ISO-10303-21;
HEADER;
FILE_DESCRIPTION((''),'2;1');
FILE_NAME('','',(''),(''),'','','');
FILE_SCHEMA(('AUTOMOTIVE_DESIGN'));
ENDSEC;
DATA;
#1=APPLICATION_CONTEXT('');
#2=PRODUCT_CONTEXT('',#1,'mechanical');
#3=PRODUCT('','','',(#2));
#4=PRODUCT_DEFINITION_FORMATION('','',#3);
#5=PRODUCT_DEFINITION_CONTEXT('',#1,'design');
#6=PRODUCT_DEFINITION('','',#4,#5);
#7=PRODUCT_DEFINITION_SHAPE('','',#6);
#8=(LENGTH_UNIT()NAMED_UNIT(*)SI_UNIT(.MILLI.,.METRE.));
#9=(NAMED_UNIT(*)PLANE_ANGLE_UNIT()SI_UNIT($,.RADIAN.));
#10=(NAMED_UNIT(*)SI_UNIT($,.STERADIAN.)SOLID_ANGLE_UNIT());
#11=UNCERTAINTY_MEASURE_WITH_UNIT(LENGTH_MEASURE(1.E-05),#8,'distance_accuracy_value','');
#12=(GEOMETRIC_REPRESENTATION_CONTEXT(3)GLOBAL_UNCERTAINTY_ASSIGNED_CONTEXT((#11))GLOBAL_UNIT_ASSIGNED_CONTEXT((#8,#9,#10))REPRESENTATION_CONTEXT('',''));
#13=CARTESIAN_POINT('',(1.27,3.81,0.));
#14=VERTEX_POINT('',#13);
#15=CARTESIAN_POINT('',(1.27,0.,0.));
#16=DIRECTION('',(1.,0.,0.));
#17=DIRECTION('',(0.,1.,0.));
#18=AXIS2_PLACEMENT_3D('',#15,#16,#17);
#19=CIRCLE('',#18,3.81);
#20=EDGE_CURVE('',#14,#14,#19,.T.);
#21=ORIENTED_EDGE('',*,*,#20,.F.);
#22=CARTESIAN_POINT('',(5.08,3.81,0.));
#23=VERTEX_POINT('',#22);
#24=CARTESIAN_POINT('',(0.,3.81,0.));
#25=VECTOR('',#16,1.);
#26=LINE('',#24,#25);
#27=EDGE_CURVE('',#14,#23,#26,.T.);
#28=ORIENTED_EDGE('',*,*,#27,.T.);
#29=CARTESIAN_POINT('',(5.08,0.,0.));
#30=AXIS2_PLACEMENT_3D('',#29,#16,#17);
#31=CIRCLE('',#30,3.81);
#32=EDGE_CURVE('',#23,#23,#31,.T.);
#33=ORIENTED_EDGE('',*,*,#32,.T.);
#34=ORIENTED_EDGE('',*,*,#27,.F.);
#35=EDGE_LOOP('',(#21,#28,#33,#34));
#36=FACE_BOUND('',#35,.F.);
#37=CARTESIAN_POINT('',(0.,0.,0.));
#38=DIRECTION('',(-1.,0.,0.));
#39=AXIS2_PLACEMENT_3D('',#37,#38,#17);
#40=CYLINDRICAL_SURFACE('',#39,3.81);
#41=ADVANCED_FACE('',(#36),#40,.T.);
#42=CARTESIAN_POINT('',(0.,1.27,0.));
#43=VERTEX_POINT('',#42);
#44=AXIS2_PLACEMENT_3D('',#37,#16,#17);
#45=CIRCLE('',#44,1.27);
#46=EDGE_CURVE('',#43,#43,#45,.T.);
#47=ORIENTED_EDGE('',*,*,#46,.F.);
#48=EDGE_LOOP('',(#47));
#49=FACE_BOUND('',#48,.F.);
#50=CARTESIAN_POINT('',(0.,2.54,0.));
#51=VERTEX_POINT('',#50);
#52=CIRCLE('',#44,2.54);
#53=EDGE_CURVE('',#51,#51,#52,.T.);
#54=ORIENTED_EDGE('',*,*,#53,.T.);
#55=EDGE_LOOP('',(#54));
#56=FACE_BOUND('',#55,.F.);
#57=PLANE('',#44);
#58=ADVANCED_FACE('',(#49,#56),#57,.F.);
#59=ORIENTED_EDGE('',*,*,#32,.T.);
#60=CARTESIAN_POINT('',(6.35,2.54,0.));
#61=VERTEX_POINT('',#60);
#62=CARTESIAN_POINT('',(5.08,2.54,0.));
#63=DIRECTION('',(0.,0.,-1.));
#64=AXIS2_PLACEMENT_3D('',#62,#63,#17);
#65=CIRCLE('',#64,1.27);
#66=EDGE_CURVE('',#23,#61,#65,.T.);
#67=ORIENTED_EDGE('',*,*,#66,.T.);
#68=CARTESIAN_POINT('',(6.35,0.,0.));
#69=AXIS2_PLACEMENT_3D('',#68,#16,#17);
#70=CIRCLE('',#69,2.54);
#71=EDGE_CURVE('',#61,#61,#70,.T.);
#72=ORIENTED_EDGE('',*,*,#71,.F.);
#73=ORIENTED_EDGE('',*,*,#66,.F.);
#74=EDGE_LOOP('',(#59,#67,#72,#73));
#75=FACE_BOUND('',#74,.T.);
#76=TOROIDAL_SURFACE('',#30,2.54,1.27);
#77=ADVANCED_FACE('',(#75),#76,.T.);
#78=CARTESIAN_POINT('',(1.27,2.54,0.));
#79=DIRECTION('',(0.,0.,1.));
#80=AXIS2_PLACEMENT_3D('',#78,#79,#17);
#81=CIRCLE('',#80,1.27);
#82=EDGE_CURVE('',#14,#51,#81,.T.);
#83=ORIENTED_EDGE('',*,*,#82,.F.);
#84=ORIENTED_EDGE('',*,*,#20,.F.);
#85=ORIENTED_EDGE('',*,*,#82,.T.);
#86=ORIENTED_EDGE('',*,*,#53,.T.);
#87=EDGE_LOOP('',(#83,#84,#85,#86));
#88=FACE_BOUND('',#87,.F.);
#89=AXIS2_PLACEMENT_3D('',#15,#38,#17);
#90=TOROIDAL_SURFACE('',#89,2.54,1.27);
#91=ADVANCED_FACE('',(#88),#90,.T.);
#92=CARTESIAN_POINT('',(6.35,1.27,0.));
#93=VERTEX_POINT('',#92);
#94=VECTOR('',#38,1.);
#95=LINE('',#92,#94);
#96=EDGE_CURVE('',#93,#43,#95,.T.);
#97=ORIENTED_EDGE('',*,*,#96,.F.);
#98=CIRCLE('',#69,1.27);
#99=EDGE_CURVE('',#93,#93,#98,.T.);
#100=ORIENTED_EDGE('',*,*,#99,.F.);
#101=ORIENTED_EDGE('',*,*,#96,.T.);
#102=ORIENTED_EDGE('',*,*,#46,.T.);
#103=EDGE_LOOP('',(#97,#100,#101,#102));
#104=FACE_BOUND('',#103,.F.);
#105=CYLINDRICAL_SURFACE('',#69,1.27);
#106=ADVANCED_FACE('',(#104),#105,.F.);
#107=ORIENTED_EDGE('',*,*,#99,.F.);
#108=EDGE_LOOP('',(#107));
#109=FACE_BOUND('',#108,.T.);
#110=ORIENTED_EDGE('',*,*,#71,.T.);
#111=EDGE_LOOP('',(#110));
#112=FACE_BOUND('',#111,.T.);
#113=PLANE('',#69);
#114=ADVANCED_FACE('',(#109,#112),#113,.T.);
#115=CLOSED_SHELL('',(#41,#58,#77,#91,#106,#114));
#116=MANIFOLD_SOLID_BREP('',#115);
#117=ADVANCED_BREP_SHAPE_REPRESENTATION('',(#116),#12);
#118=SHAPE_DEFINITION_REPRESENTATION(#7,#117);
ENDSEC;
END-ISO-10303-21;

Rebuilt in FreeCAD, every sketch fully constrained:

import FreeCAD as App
import Part
import Sketcher

V = App.Vector
Q = App.Units.Quantity


def edges_at(feature, points):
    """Names of the edges that pass closest to the given points."""
    edges = feature.Shape.Edges
    near = lambda p: min(range(len(edges)), key=lambda i: edges[i].distToShape(Part.Vertex(*p))[0])
    return sorted({f"Edge{near(p) + 1}" for p in points})

doc = App.newDocument("Part")
body = doc.addObject("PartDesign::Body", "Body")

# Sketch on YZ plane
sketch1 = body.newObject("Sketcher::SketchObject", "Sketch")
sketch1.AttachmentSupport = (doc.getObject("YZ_Plane"), [""])
sketch1.MapMode = "FlatFace"
sketch1.addGeometry(Part.Circle(V(0, 0, 0), V(0, 0, 1), 3.8), False)
sketch1.addConstraint(Sketcher.Constraint("Coincident", 0, 3, -1, 1))
sketch1.addConstraint(Sketcher.Constraint("Diameter", 0, Q("0.3 in")))
pad1 = body.newObject("PartDesign::Pad", "Pad")
pad1.Profile = sketch1
pad1.Length = Q("0.25 in")
doc.recompute()

fillet = body.newObject("PartDesign::Fillet", "Fillet")
fillet.Base = (pad1, edges_at(pad1, [(6.35, -3.81, 0), (0, -3.81, 0)]))
fillet.Radius = Q("0.05 in")

# Sketch on YZ plane
sketch2 = body.newObject("Sketcher::SketchObject", "Sketch001")
sketch2.AttachmentSupport = (doc.getObject("YZ_Plane"), [""])
sketch2.MapMode = "FlatFace"
sketch2.AttachmentOffset = App.Placement(V(0, 0, 0.25 * 25.4), App.Rotation())
sketch2.addGeometry(Part.Circle(V(0, 0, 0), V(0, 0, 1), 1.3), False)
sketch2.addConstraint(Sketcher.Constraint("Coincident", 0, 3, -1, 1))
sketch2.addConstraint(Sketcher.Constraint("Diameter", 0, Q("0.1 in")))
pocket1 = body.newObject("PartDesign::Pocket", "Pocket")
pocket1.Profile = sketch2
pocket1.Length = Q("1 in")

doc.recompute()
